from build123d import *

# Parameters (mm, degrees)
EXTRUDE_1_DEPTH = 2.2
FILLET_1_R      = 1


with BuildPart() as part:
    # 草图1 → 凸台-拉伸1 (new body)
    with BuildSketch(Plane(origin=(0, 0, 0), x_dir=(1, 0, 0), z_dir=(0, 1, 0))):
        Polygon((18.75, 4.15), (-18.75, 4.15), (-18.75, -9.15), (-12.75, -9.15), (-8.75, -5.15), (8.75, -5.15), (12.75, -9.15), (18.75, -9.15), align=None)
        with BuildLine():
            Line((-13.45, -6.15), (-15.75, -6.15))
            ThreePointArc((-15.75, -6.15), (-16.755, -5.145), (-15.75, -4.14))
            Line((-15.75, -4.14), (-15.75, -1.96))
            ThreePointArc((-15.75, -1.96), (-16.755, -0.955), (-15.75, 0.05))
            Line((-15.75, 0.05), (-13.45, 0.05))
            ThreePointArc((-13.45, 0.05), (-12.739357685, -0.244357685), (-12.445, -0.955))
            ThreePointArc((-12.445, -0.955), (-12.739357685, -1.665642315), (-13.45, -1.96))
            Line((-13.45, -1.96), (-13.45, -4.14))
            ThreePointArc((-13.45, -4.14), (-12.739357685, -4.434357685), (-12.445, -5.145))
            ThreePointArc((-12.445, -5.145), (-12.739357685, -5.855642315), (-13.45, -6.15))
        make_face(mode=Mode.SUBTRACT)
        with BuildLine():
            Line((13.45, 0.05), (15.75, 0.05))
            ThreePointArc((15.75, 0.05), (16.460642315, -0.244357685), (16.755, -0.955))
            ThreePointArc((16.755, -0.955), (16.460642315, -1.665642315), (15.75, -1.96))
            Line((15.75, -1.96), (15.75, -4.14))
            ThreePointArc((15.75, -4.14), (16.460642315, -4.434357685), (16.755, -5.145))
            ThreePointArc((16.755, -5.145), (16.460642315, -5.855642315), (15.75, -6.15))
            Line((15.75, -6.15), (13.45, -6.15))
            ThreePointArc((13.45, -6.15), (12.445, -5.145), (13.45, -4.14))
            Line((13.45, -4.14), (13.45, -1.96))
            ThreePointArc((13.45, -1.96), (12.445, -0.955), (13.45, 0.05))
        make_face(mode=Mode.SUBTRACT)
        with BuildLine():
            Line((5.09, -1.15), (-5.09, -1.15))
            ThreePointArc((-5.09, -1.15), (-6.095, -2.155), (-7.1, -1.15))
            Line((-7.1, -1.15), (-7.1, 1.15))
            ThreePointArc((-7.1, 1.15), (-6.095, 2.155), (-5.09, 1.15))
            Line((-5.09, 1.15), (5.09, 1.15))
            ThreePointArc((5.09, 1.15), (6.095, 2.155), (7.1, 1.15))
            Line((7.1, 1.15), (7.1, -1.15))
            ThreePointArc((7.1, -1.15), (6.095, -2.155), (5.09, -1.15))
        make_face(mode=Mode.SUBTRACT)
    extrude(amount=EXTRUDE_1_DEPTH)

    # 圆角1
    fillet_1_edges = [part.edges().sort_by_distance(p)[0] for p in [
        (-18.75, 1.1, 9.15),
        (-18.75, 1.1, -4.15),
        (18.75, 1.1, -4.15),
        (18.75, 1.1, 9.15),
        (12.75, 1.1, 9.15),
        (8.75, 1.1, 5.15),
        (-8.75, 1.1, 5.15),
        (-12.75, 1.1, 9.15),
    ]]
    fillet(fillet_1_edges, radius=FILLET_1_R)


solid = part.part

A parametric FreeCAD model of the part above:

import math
import FreeCAD as App
import Part
import Sketcher
from FreeCAD import Vector


def edges_at(feature, points):
    """Names of the edges that pass closest to the given points."""
    edges = feature.Shape.Edges
    near = lambda p: min(range(len(edges)), key=lambda i: edges[i].distToShape(Part.Vertex(*p))[0])
    return sorted({f"Edge{near(p) + 1}" for p in points})

doc = App.newDocument("Part")
body = doc.addObject("PartDesign::Body", "Body")

sketch1 = body.newObject("Sketcher::SketchObject", "Sketch")
sketch1.AttachmentSupport = (doc.getObject("XZ_Plane"), [""])
sketch1.MapMode = "FlatFace"
sketch1.addGeometry(Part.LineSegment(Vector(18.75, -4.15, 0), Vector(-18.75, -4.15, 0)), False)
sketch1.addGeometry(Part.LineSegment(Vector(-18.75, -4.15, 0), Vector(-18.75, 9.15, 0)), False)
sketch1.addGeometry(Part.LineSegment(Vector(-18.75, 9.15, 0), Vector(-12.75, 9.15, 0)), False)
sketch1.addGeometry(Part.LineSegment(Vector(-12.75, 9.15, 0), Vector(-8.75, 5.15, 0)), False)
sketch1.addGeometry(Part.LineSegment(Vector(-8.75, 5.15, 0), Vector(8.75, 5.15, 0)), False)
sketch1.addGeometry(Part.LineSegment(Vector(8.75, 5.15, 0), Vector(12.75, 9.15, 0)), False)
sketch1.addGeometry(Part.LineSegment(Vector(12.75, 9.15, 0), Vector(18.75, 9.15, 0)), False)
sketch1.addGeometry(Part.LineSegment(Vector(18.75, 9.15, 0), Vector(18.75, -4.15, 0)), False)
sketch1.addGeometry(Part.ArcOfCircle(Part.Circle(Vector(-13.45, 5.145, 0), Vector(0, 0, 1), 1.005), math.radians(0), math.radians(90)), False)
sketch1.addGeometry(Part.LineSegment(Vector(-13.45, 6.15, 0), Vector(-15.75, 6.15, 0)), False)
sketch1.addGeometry(Part.ArcOfCircle(Part.Circle(Vector(-15.75, 5.145, 0), Vector(0, 0, 1), 1.005), math.radians(90), math.radians(270)), False)
sketch1.addGeometry(Part.LineSegment(Vector(-15.75, 4.14, 0), Vector(-15.75, 1.96, 0)), False)
sketch1.addGeometry(Part.ArcOfCircle(Part.Circle(Vector(-15.75, 0.955, 0), Vector(0, 0, 1), 1.005), math.radians(90), math.radians(270)), False)
sketch1.addGeometry(Part.LineSegment(Vector(-15.75, -0.05, 0), Vector(-13.45, -0.05, 0)), False)
sketch1.addGeometry(Part.ArcOfCircle(Part.Circle(Vector(-13.45, 0.955, 0), Vector(0, 0, 1), 1.005), math.radians(-90), math.radians(0)), False)
sketch1.addGeometry(Part.ArcOfCircle(Part.Circle(Vector(-13.45, 0.955, 0), Vector(0, 0, 1), 1.005), math.radians(0), math.radians(90)), False)
sketch1.addGeometry(Part.LineSegment(Vector(-13.45, 1.96, 0), Vector(-13.45, 4.14, 0)), False)
sketch1.addGeometry(Part.ArcOfCircle(Part.Circle(Vector(-13.45, 5.145, 0), Vector(0, 0, 1), 1.005), math.radians(-90), math.radians(0)), False)
sketch1.addGeometry(Part.ArcOfCircle(Part.Circle(Vector(13.45, 0.955, 0), Vector(0, 0, 1), 1.005), math.radians(90), math.radians(270)), False)
sketch1.addGeometry(Part.LineSegment(Vector(13.45, -0.05, 0), Vector(15.75, -0.05, 0)), False)
sketch1.addGeometry(Part.ArcOfCircle(Part.Circle(Vector(15.75, 0.955, 0), Vector(0, 0, 1), 1.005), math.radians(-90), math.radians(0)), False)
sketch1.addGeometry(Part.ArcOfCircle(Part.Circle(Vector(15.75, 0.955, 0), Vector(0, 0, 1), 1.005), math.radians(0), math.radians(90)), False)
sketch1.addGeometry(Part.LineSegment(Vector(15.75, 1.96, 0), Vector(15.75, 4.14, 0)), False)
sketch1.addGeometry(Part.ArcOfCircle(Part.Circle(Vector(15.75, 5.145, 0), Vector(0, 0, 1), 1.005), math.radians(-90), math.radians(0)), False)
sketch1.addGeometry(Part.ArcOfCircle(Part.Circle(Vector(15.75, 5.145, 0), Vector(0, 0, 1), 1.005), math.radians(0), math.radians(90)), False)
sketch1.addGeometry(Part.LineSegment(Vector(15.75, 6.15, 0), Vector(13.45, 6.15, 0)), False)
sketch1.addGeometry(Part.ArcOfCircle(Part.Circle(Vector(13.45, 5.145, 0), Vector(0, 0, 1), 1.005), math.radians(90), math.radians(270)), False)
sketch1.addGeometry(Part.LineSegment(Vector(13.45, 4.14, 0), Vector(13.45, 1.96, 0)), False)
sketch1.addGeometry(Part.ArcOfCircle(Part.Circle(Vector(6.095, 1.15, 0), Vector(0, 0, 1), 1.005), math.radians(0), math.radians(180)), False)
sketch1.addGeometry(Part.LineSegment(Vector(5.09, 1.15, 0), Vector(-5.09, 1.15, 0)), False)
sketch1.addGeometry(Part.ArcOfCircle(Part.Circle(Vector(-6.095, 1.15, 0), Vector(0, 0, 1), 1.005), math.radians(0), math.radians(180)), False)
sketch1.addGeometry(Part.LineSegment(Vector(-7.1, 1.15, 0), Vector(-7.1, -1.15, 0)), False)
sketch1.addGeometry(Part.ArcOfCircle(Part.Circle(Vector(-6.095, -1.15, 0), Vector(0, 0, 1), 1.005), math.radians(180), math.radians(360)), False)
sketch1.addGeometry(Part.LineSegment(Vector(-5.09, -1.15, 0), Vector(5.09, -1.15, 0)), False)
sketch1.addGeometry(Part.ArcOfCircle(Part.Circle(Vector(6.095, -1.15, 0), Vector(0, 0, 1), 1.005), math.radians(180), math.radians(360)), False)
sketch1.addGeometry(Part.LineSegment(Vector(7.1, -1.15, 0), Vector(7.1, 1.15, 0)), False)
sketch1.addConstraint(Sketcher.Constraint("Coincident", 0, 2, 1, 1))
sketch1.addConstraint(Sketcher.Constraint("Coincident", 1, 2, 2, 1))
sketch1.addConstraint(Sketcher.Constraint("Coincident", 2, 2, 3, 1))
sketch1.addConstraint(Sketcher.Constraint("Coincident", 3, 2, 4, 1))
sketch1.addConstraint(Sketcher.Constraint("Coincident", 4, 2, 5, 1))
sketch1.addConstraint(Sketcher.Constraint("Coincident", 5, 2, 6, 1))
sketch1.addConstraint(Sketcher.Constraint("Coincident", 6, 2, 7, 1))
sketch1.addConstraint(Sketcher.Constraint("Coincident", 7, 2, 0, 1))
sketch1.addConstraint(Sketcher.Constraint("Tangent", 8, 2, 9, 1))
sketch1.addConstraint(Sketcher.Constraint("Tangent", 9, 2, 10, 1))
sketch1.addConstraint(Sketcher.Constraint("Coincident", 10, 2, 11, 1))
sketch1.addConstraint(Sketcher.Constraint("Coincident", 11, 2, 12, 1))
sketch1.addConstraint(Sketcher.Constraint("Tangent", 12, 2, 13, 1))
sketch1.addConstraint(Sketcher.Constraint("Tangent", 13, 2, 14, 1))
sketch1.addConstraint(Sketcher.Constraint("Tangent", 14, 2, 15, 1))
sketch1.addConstraint(Sketcher.Constraint("Coincident", 15, 2, 16, 1))
sketch1.addConstraint(Sketcher.Constraint("Coincident", 16, 2, 17, 1))
sketch1.addConstraint(Sketcher.Constraint("Tangent", 17, 2, 8, 1))
sketch1.addConstraint(Sketcher.Constraint("Tangent", 18, 2, 19, 1))
sketch1.addConstraint(Sketcher.Constraint("Tangent", 19, 2, 20, 1))
sketch1.addConstraint(Sketcher.Constraint("Tangent", 20, 2, 21, 1))
sketch1.addConstraint(Sketcher.Constraint("Coincident", 21, 2, 22, 1))
sketch1.addConstraint(Sketcher.Constraint("Coincident", 22, 2, 23, 1))
sketch1.addConstraint(Sketcher.Constraint("Tangent", 23, 2, 24, 1))
sketch1.addConstraint(Sketcher.Constraint("Tangent", 24, 2, 25, 1))
sketch1.addConstraint(Sketcher.Constraint("Tangent", 25, 2, 26, 1))
sketch1.addConstraint(Sketcher.Constraint("Coincident", 26, 2, 27, 1))
sketch1.addConstraint(Sketcher.Constraint("Coincident", 27, 2, 18, 1))
sketch1.addConstraint(Sketcher.Constraint("Coincident", 28, 2, 29, 1))
sketch1.addConstraint(Sketcher.Constraint("Coincident", 29, 2, 30, 1))
sketch1.addConstraint(Sketcher.Constraint("Tangent", 30, 2, 31, 1))
sketch1.addConstraint(Sketcher.Constraint("Tangent", 31, 2, 32, 1))
sketch1.addConstraint(Sketcher.Constraint("Coincident", 32, 2, 33, 1))
sketch1.addConstraint(Sketcher.Constraint("Coincident", 33, 2, 34, 1))
sketch1.addConstraint(Sketcher.Constraint("Tangent", 34, 2, 35, 1))
sketch1.addConstraint(Sketcher.Constraint("Tangent", 35, 2, 28, 1))
sketch1.addConstraint(Sketcher.Constraint("Horizontal", 0))
sketch1.addConstraint(Sketcher.Constraint("Vertical", 1))
sketch1.addConstraint(Sketcher.Constraint("Horizontal", 2))
sketch1.addConstraint(Sketcher.Constraint("Horizontal", 4))
sketch1.addConstraint(Sketcher.Constraint("Horizontal", 6))
sketch1.addConstraint(Sketcher.Constraint("Vertical", 7))
sketch1.addConstraint(Sketcher.Constraint("Horizontal", 9))
sketch1.addConstraint(Sketcher.Constraint("Vertical", 11))
sketch1.addConstraint(Sketcher.Constraint("Horizontal", 13))
sketch1.addConstraint(Sketcher.Constraint("Vertical", 16))
sketch1.addConstraint(Sketcher.Constraint("Horizontal", 19))
sketch1.addConstraint(Sketcher.Constraint("Vertical", 22))
sketch1.addConstraint(Sketcher.Constraint("Horizontal", 25))
sketch1.addConstraint(Sketcher.Constraint("Vertical", 27))
sketch1.addConstraint(Sketcher.Constraint("Horizontal", 29))
sketch1.addConstraint(Sketcher.Constraint("Vertical", 31))
sketch1.addConstraint(Sketcher.Constraint("Horizontal", 33))
sketch1.addConstraint(Sketcher.Constraint("Vertical", 35))
sketch1.addConstraint(Sketcher.Constraint("Equal", 8, 10))
sketch1.addConstraint(Sketcher.Constraint("Equal", 10, 12))
sketch1.addConstraint(Sketcher.Constraint("Equal", 12, 14))
sketch1.addConstraint(Sketcher.Constraint("Equal", 14, 15))
sketch1.addConstraint(Sketcher.Constraint("Equal", 15, 17))
sketch1.addConstraint(Sketcher.Constraint("Equal", 17, 18))
sketch1.addConstraint(Sketcher.Constraint("Equal", 18, 20))
sketch1.addConstraint(Sketcher.Constraint("Equal", 20, 21))
sketch1.addConstraint(Sketcher.Constraint("Equal", 21, 23))
sketch1.addConstraint(Sketcher.Constraint("Equal", 23, 24))
sketch1.addConstraint(Sketcher.Constraint("Equal", 24, 26))
sketch1.addConstraint(Sketcher.Constraint("Equal", 26, 28))
sketch1.addConstraint(Sketcher.Constraint("Equal", 28, 30))
sketch1.addConstraint(Sketcher.Constraint("Equal", 30, 32))
sketch1.addConstraint(Sketcher.Constraint("Equal", 32, 34))
sketch1.addConstraint(Sketcher.Constraint("Symmetric", 28, 3, 32, 3, -1, 1))
sketch1.addConstraint(Sketcher.Constraint("Symmetric", 14, 3, 18, 3, -2))
sketch1.addConstraint(Sketcher.Constraint("Symmetric", 10, 3, 23, 3, -2))
sketch1.addConstraint(Sketcher.Constraint("Symmetric", 2, 2, 5, 2, -2))
sketch1.addConstraint(Sketcher.Constraint("Perpendicular", 3, 5))
sketch1.addConstraint(Sketcher.Constraint("Horizontal", 28, 3, 30, 3))
sketch1.addConstraint(Sketcher.Constraint("Horizontal", 32, 3, 34, 3))
sketch1.addConstraint(Sketcher.Constraint("Horizontal", 21, 3, 14, 2))
sketch1.addConstraint(Sketcher.Constraint("Horizontal", 26, 3, 17, 2))
sketch1.addConstraint(Sketcher.Constraint("Horizontal", 14, 2, 20, 2))
sketch1.addConstraint(Sketcher.Constraint("Horizontal", 17, 2, 23, 2))
sketch1.addConstraint(Sketcher.Constraint("Horizontal", 30, 3, 28, 2))
sketch1.addConstraint(Sketcher.Constraint("Horizontal", 31, 2, 32, 2))
sketch1.addConstraint(Sketcher.Constraint("Vertical", 10, 3, 12, 3))
sketch1.addConstraint(Sketcher.Constraint("Vertical", 8, 3, 14, 3))
sketch1.addConstraint(Sketcher.Constraint("Vertical", 21, 3, 23, 3))
sketch1.addConstraint(Sketcher.Constraint("Vertical", 18, 3, 26, 3))
sketch1.addConstraint(Sketcher.Constraint("Vertical", 9, 2, 10, 2))
sketch1.addConstraint(Sketcher.Constraint("Vertical", 13, 2, 15, 2))
sketch1.addConstraint(Sketcher.Constraint("Vertical", 19, 2, 21, 2))
sketch1.addConstraint(Sketcher.Constraint("Vertical", 25, 2, 26, 2))
sketch1.addConstraint(Sketcher.Constraint("Equal", 2, 6))
sketch1.addConstraint(Sketcher.Constraint("Equal", 25, 31))
sketch1.addConstraint(Sketcher.Constraint("Equal", 3, 5))
sketch1.addConstraint(Sketcher.Constraint("DistanceX", 2, 1, 2, 2, 6.0))
sketch1.addConstraint(Sketcher.Constraint("DistanceX", 0, 2, 0, 1, 37.5))
sketch1.addConstraint(Sketcher.Constraint("DistanceX", 4, 1, 4, 2, 17.5))
sketch1.addConstraint(Sketcher.Constraint("DistanceX", 9, 2, 9, 1, 2.3))
sketch1.addConstraint(Sketcher.Constraint("DistanceY", 1, 1, 1, 2, 13.3))
sketch1.addConstraint(Sketcher.Constraint("Radius", 8, 1.005))
sketch1.addConstraint(Sketcher.Constraint("DistanceX", 0, 2, 12, 3, 3.0))
sketch1.addConstraint(Sketcher.Constraint("DistanceY", 30, 3, 3, 2, 4.0))
sketch1.addConstraint(Sketcher.Constraint("DistanceY", 8, 2, 2, 2, 3.0))
sketch1.addConstraint(Sketcher.Constraint("DistanceX", 29, 2, 29, 1, 10.18))
sketch1.addConstraint(Sketcher.Constraint("DistanceY", 11, 2, 11, 1, 2.18))
pad1 = body.newObject("PartDesign::Pad", "Pad")
pad1.Profile = sketch1
pad1.Length = 2.2
pad1.Reversed = True
doc.recompute()

fillet = body.newObject("PartDesign::Fillet", "Fillet")
fillet.Base = (pad1, edges_at(pad1, [
    (-18.75, 1.1, 9.15),
    (-18.75, 1.1, -4.15),
    (18.75, 1.1, -4.15),
    (18.75, 1.1, 9.15),
    (12.75, 1.1, 9.15),
    (8.75, 1.1, 5.15),
    (-8.75, 1.1, 5.15),
    (-12.75, 1.1, 9.15),
]))
fillet.Radius = 1

doc.recompute()
